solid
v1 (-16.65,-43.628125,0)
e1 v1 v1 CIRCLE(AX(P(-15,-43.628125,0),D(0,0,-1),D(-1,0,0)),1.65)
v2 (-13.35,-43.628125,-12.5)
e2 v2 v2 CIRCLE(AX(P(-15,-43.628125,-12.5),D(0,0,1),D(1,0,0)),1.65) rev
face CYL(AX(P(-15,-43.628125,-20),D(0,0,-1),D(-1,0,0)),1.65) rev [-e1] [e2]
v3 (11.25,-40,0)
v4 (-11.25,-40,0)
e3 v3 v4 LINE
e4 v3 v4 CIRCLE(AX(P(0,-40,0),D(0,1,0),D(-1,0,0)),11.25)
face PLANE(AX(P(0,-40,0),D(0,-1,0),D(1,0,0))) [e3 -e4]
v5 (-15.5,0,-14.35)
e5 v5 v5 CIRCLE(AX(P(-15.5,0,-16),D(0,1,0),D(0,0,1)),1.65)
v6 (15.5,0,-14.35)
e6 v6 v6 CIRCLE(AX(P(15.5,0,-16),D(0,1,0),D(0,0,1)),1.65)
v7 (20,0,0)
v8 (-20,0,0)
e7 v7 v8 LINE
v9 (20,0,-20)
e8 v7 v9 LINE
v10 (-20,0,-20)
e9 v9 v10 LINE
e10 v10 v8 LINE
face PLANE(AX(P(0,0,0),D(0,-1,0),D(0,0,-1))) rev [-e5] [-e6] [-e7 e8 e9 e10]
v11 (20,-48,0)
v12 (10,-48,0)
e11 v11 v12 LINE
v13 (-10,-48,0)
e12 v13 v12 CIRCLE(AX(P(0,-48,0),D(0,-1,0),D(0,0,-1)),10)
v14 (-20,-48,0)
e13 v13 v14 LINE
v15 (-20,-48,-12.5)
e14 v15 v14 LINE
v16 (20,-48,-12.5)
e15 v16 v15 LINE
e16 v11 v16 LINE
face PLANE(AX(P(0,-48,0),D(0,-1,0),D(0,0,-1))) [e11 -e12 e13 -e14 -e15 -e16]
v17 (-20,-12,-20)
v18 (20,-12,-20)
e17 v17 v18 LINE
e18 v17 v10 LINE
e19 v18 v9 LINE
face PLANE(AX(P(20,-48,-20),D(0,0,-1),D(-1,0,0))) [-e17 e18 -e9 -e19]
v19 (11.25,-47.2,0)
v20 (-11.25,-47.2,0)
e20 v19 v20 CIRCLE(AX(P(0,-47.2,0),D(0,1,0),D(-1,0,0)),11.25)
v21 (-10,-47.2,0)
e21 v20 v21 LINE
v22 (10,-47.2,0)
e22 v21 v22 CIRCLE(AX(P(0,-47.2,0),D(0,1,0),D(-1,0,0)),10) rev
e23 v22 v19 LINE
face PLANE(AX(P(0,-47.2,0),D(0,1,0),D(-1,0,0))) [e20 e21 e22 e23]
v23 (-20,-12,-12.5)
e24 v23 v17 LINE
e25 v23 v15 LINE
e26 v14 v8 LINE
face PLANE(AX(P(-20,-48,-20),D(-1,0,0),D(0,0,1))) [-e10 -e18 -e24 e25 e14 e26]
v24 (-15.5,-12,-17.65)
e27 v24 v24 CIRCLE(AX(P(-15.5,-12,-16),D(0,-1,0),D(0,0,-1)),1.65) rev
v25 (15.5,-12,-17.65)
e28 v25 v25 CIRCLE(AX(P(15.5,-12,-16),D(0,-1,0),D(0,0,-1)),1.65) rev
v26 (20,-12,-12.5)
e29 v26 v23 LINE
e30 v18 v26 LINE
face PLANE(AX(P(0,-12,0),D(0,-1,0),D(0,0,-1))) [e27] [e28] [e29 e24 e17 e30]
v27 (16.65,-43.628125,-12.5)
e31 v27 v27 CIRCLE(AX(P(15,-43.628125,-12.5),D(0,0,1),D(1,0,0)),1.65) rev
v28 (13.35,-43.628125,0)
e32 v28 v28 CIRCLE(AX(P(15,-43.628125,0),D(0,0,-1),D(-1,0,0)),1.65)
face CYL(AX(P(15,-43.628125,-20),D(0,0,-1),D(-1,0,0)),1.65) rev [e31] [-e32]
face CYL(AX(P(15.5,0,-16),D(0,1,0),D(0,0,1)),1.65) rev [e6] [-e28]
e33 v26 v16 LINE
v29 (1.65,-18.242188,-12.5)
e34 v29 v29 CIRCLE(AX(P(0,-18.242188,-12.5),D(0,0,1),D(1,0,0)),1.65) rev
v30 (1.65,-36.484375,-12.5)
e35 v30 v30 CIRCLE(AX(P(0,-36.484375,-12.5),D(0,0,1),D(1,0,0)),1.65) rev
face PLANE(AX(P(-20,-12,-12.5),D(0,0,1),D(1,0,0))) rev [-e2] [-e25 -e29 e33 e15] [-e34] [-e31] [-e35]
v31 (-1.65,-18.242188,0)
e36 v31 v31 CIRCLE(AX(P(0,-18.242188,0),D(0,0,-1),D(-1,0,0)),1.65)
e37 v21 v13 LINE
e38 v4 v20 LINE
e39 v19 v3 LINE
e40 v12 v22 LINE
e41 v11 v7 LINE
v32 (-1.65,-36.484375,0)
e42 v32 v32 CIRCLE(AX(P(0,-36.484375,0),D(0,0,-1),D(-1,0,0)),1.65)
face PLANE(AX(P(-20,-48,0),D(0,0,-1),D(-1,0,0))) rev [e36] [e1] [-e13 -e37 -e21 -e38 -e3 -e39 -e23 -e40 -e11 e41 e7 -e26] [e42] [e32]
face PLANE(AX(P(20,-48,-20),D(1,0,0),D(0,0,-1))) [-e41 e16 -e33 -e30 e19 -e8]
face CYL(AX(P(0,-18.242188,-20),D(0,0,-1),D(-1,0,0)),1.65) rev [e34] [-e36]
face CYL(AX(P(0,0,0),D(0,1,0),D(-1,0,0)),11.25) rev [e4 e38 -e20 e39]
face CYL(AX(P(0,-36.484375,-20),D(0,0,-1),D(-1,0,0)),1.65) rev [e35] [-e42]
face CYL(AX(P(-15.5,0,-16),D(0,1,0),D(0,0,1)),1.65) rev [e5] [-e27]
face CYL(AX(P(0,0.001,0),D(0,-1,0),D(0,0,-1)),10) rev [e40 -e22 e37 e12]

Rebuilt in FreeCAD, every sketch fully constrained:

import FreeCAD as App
import Part
import Sketcher
from FreeCAD import Vector

doc = App.newDocument("Part")
body = doc.addObject("PartDesign::Body", "Body")

# Sketch on XZ plane
sketch1 = doc.addObject("Sketcher::SketchObject", "Sketch")
body.addObject(sketch1)
sketch1.AttachmentSupport = (doc.XZ_Plane, [""])
sketch1.MapMode = "FlatFace"
sketch1.addGeometry(Part.LineSegment(Vector(-20, -20, 0), Vector(-20, 20, 0)), False)
sketch1.addGeometry(Part.LineSegment(Vector(-20, 20, 0), Vector(20, 20, 0)), False)
sketch1.addGeometry(Part.LineSegment(Vector(20, 20, 0), Vector(20, -20, 0)), False)
sketch1.addGeometry(Part.LineSegment(Vector(20, -20, 0), Vector(-20, -20, 0)), False)
sketch1.addConstraint(Sketcher.Constraint("Coincident", 0, 2, 1, 1))
sketch1.addConstraint(Sketcher.Constraint("Coincident", 1, 2, 2, 1))
sketch1.addConstraint(Sketcher.Constraint("Coincident", 2, 2, 3, 1))
sketch1.addConstraint(Sketcher.Constraint("Coincident", 3, 2, 0, 1))
sketch1.addConstraint(Sketcher.Constraint("Vertical", 0))
sketch1.addConstraint(Sketcher.Constraint("Horizontal", 1))
sketch1.addConstraint(Sketcher.Constraint("Vertical", 2))
sketch1.addConstraint(Sketcher.Constraint("Horizontal", 3))
sketch1.addConstraint(Sketcher.Constraint("Symmetric", 0, 2, 2, 2, -1, 1))
sketch1.addConstraint(Sketcher.Constraint("Equal", 3, 0))
sketch1.addConstraint(Sketcher.Constraint("DistanceX", 1, 1, 1, 2, 40.0))
pad1 = doc.addObject("PartDesign::Pad", "Pad")
body.addObject(pad1)
pad1.Profile = sketch1
pad1.Length = 48

# Sketch on XZ plane
sketch2 = doc.addObject("Sketcher::SketchObject", "Sketch001")
body.addObject(sketch2)
sketch2.AttachmentSupport = (doc.XZ_Plane, [""])
sketch2.MapMode = "FlatFace"
sketch2.addGeometry(Part.Circle(Vector(-15.5, -16, 0), Vector(0, 0, 1), 1.6), False)
sketch2.addGeometry(Part.Circle(Vector(15.5, -16, 0), Vector(0, 0, 1), 1.6), False)
sketch2.addGeometry(Part.Circle(Vector(15.5, 16, 0), Vector(0, 0, 1), 1.6), False)
sketch2.addGeometry(Part.Circle(Vector(-15.5, 16, 0), Vector(0, 0, 1), 1.6), False)
sketch2.addConstraint(Sketcher.Constraint("Equal", 0, 1))
sketch2.addConstraint(Sketcher.Constraint("Equal", 1, 2))
sketch2.addConstraint(Sketcher.Constraint("Equal", 2, 3))
sketch2.addConstraint(Sketcher.Constraint("Symmetric", 0, 3, 2, 3, -1, 1))
sketch2.addConstraint(Sketcher.Constraint("Symmetric", 1, 3, 3, 3, -1, 1))
sketch2.addConstraint(Sketcher.Constraint("Symmetric", 0, 3, 1, 3, -2))
sketch2.addConstraint(Sketcher.Constraint("Diameter", 0, 3.3))
sketch2.addConstraint(Sketcher.Constraint("DistanceY", 0, 3, -1, 1, 16.0))
sketch2.addConstraint(Sketcher.Constraint("DistanceX", 0, 3, 1, 3, 31.0))
doc.recompute()
hole = doc.addObject("PartDesign::Hole", "Hole")
body.addObject(hole)
hole.Profile = sketch2
hole.ThreadType = "None"
hole.Diameter = 3.3
hole.DepthType = "ThroughAll"
hole.Reversed = True

# Sketch on XZ plane
sketch3 = doc.addObject("Sketcher::SketchObject", "Sketch002")
body.addObject(sketch3)
sketch3.AttachmentSupport = (doc.XZ_Plane, [""])
sketch3.MapMode = "FlatFace"
sketch3.addGeometry(Part.LineSegment(Vector(-20, 0, 0), Vector(-20, 20, 0)), False)
sketch3.addGeometry(Part.LineSegment(Vector(-20, 20, 0), Vector(20, 20, 0)), False)
sketch3.addGeometry(Part.LineSegment(Vector(20, 20, 0), Vector(20, 0, 0)), False)
sketch3.addGeometry(Part.LineSegment(Vector(20, 0, 0), Vector(-20, 0, 0)), False)
sketch3.addConstraint(Sketcher.Constraint("Coincident", 0, 2, 1, 1))
sketch3.addConstraint(Sketcher.Constraint("Coincident", 1, 2, 2, 1))
sketch3.addConstraint(Sketcher.Constraint("Coincident", 2, 2, 3, 1))
sketch3.addConstraint(Sketcher.Constraint("Coincident", 3, 2, 0, 1))
sketch3.addConstraint(Sketcher.Constraint("Vertical", 0))
sketch3.addConstraint(Sketcher.Constraint("Horizontal", 1))
sketch3.addConstraint(Sketcher.Constraint("Vertical", 2))
sketch3.addConstraint(Sketcher.Constraint("Horizontal", 3))
sketch3.addConstraint(Sketcher.Constraint("Symmetric", 2, 2, 3, 2, -1, 1))
sketch3.addConstraint(Sketcher.Constraint("DistanceX", 1, 1, 1, 2, 40.0))
sketch3.addConstraint(Sketcher.Constraint("DistanceY", 0, 1, 0, 2, 20.0))
pocket1 = doc.addObject("PartDesign::Pocket", "Pocket")
body.addObject(pocket1)
pocket1.Profile = sketch3
pocket1.Type = "ThroughAll"
pocket1.Reversed = True

# Sketch on XY plane
sketch4 = doc.addObject("Sketcher::SketchObject", "Sketch003")
body.addObject(sketch4)
sketch4.AttachmentSupport = (doc.XY_Plane, [""])
sketch4.MapMode = "FlatFace"
sketch4.addGeometry(Part.LineSegment(Vector(0, -40, 0), Vector(0, -47, 0)), False)
sketch4.addGeometry(Part.LineSegment(Vector(0, -47, 0), Vector(11, -47, 0)), False)
sketch4.addGeometry(Part.LineSegment(Vector(11, -47, 0), Vector(11, -40, 0)), False)
sketch4.addGeometry(Part.LineSegment(Vector(11, -40, 0), Vector(0, -40, 0)), False)
sketch4.addConstraint(Sketcher.Constraint("Coincident", 0, 2, 1, 1))
sketch4.addConstraint(Sketcher.Constraint("Coincident", 1, 2, 2, 1))
sketch4.addConstraint(Sketcher.Constraint("Coincident", 2, 2, 3, 1))
sketch4.addConstraint(Sketcher.Constraint("Coincident", 3, 2, 0, 1))
sketch4.addConstraint(Sketcher.Constraint("Vertical", 0))
sketch4.addConstraint(Sketcher.Constraint("Horizontal", 1))
sketch4.addConstraint(Sketcher.Constraint("Vertical", 2))
sketch4.addConstraint(Sketcher.Constraint("Horizontal", 3))
sketch4.addConstraint(Sketcher.Constraint("PointOnObject", 0, 2, -2))
sketch4.addConstraint(Sketcher.Constraint("DistanceY", 0, 2, 0, 1, 7.2))
sketch4.addConstraint(Sketcher.Constraint("DistanceY", 2, 2, -1, 1, 40.0))
sketch4.addConstraint(Sketcher.Constraint("DistanceX", 1, 1, 1, 2, 11.25))
groove = doc.addObject("PartDesign::Groove", "Groove")
body.addObject(groove)
groove.Profile = sketch4
groove.ReferenceAxis = (sketch4, ["V_Axis"])
groove.Angle = 360

# Sketch on XZ plane
sketch5 = doc.addObject("Sketcher::SketchObject", "Sketch004")
body.addObject(sketch5)
sketch5.AttachmentSupport = (doc.XZ_Plane, [""])
sketch5.MapMode = "FlatFace"
sketch5.AttachmentOffset = App.Placement(Vector(0, 0, 48), App.Rotation())
sketch5.addGeometry(Part.Circle(Vector(0, 0, 0), Vector(0, 0, 1), 10), False)
sketch5.addConstraint(Sketcher.Constraint("Coincident", 0, 3, -1, 1))
sketch5.addConstraint(Sketcher.Constraint("Diameter", 0, 20.0))
pocket2 = doc.addObject("PartDesign::Pocket", "Pocket001")
body.addObject(pocket2)
pocket2.Profile = sketch5
pocket2.Type = "UpToFirst"

# Sketch on XY plane
sketch6 = doc.addObject("Sketcher::SketchObject", "Sketch005")
body.addObject(sketch6)
sketch6.AttachmentSupport = (doc.XY_Plane, [""])
sketch6.MapMode = "FlatFace"
sketch6.AttachmentOffset = App.Placement(Vector(0, 0, -20), App.Rotation())
sketch6.addGeometry(Part.Circle(Vector(-15, -43.6, 0), Vector(0, 0, 1), 1.6), False)
sketch6.addGeometry(Part.Circle(Vector(15, -43.6, 0), Vector(0, 0, 1), 1.6), False)
sketch6.addGeometry(Part.Circle(Vector(0, -36.5, 0), Vector(0, 0, 1), 1.6), False)
sketch6.addGeometry(Part.Circle(Vector(0, -18.2, 0), Vector(0, 0, 1), 1.6), False)
sketch6.addConstraint(Sketcher.Constraint("Equal", 0, 1))
sketch6.addConstraint(Sketcher.Constraint("Equal", 1, 2))
sketch6.addConstraint(Sketcher.Constraint("Equal", 2, 3))
sketch6.addConstraint(Sketcher.Constraint("Symmetric", 0, 3, 1, 3, -2))
sketch6.addConstraint(Sketcher.Constraint("PointOnObject", 2, 3, -2))
sketch6.addConstraint(Sketcher.Constraint("PointOnObject", 3, 3, -2))
sketch6.addConstraint(Sketcher.Constraint("Diameter", 0, 3.3))
sketch6.addConstraint(Sketcher.Constraint("DistanceX", 0, 3, -1, 1, 15.0))
sketch6.addConstraint(Sketcher.Constraint("DistanceY", 0, 3, 2, 3, 7.14375))
sketch6.addConstraint(Sketcher.Constraint("DistanceY", 0, 3, -1, 1, 43.628125))
sketch6.addConstraint(Sketcher.Constraint("DistanceY", 3, 3, -1, 1, 18.242188))
doc.recompute()
hole2 = doc.addObject("PartDesign::Hole", "Hole001")
body.addObject(hole2)
hole2.Profile = sketch6
hole2.ThreadType = "None"
hole2.Diameter = 3.3
hole2.DepthType = "ThroughAll"
hole2.Reversed = True

# Sketch on XZ plane
sketch7 = doc.addObject("Sketcher::SketchObject", "Sketch006")
body.addObject(sketch7)
sketch7.AttachmentSupport = (doc.XZ_Plane, [""])
sketch7.MapMode = "FlatFace"
sketch7.AttachmentOffset = App.Placement(Vector(0, 0, 48), App.Rotation())
sketch7.addGeometry(Part.LineSegment(Vector(-20, -12, 0), Vector(-20, -20, 0)), False)
sketch7.addGeometry(Part.LineSegment(Vector(-20, -20, 0), Vector(20, -20, 0)), False)
sketch7.addGeometry(Part.LineSegment(Vector(20, -20, 0), Vector(20, -12, 0)), False)
sketch7.addGeometry(Part.LineSegment(Vector(20, -12, 0), Vector(-20, -12, 0)), False)
sketch7.addConstraint(Sketcher.Constraint("Coincident", 0, 2, 1, 1))
sketch7.addConstraint(Sketcher.Constraint("Coincident", 1, 2, 2, 1))
sketch7.addConstraint(Sketcher.Constraint("Coincident", 2, 2, 3, 1))
sketch7.addConstraint(Sketcher.Constraint("Coincident", 3, 2, 0, 1))
sketch7.addConstraint(Sketcher.Constraint("Vertical", 0))
sketch7.addConstraint(Sketcher.Constraint("Horizontal", 1))
sketch7.addConstraint(Sketcher.Constraint("Vertical", 2))
sketch7.addConstraint(Sketcher.Constraint("Horizontal", 3))
sketch7.addConstraint(Sketcher.Constraint("DistanceX", 1, 1, 1, 2, 40.0))
sketch7.addConstraint(Sketcher.Constraint("DistanceY", 0, 2, 0, 1, 7.5))
sketch7.addConstraint(Sketcher.Constraint("DistanceX", 0, 2, -1, 1, 20.0))
sketch7.addConstraint(Sketcher.Constraint("DistanceY", 0, 2, -1, 1, 20.0))
pocket3 = doc.addObject("PartDesign::Pocket", "Pocket002")
body.addObject(pocket3)
pocket3.Profile = sketch7
pocket3.Length = 36

doc.recompute()
